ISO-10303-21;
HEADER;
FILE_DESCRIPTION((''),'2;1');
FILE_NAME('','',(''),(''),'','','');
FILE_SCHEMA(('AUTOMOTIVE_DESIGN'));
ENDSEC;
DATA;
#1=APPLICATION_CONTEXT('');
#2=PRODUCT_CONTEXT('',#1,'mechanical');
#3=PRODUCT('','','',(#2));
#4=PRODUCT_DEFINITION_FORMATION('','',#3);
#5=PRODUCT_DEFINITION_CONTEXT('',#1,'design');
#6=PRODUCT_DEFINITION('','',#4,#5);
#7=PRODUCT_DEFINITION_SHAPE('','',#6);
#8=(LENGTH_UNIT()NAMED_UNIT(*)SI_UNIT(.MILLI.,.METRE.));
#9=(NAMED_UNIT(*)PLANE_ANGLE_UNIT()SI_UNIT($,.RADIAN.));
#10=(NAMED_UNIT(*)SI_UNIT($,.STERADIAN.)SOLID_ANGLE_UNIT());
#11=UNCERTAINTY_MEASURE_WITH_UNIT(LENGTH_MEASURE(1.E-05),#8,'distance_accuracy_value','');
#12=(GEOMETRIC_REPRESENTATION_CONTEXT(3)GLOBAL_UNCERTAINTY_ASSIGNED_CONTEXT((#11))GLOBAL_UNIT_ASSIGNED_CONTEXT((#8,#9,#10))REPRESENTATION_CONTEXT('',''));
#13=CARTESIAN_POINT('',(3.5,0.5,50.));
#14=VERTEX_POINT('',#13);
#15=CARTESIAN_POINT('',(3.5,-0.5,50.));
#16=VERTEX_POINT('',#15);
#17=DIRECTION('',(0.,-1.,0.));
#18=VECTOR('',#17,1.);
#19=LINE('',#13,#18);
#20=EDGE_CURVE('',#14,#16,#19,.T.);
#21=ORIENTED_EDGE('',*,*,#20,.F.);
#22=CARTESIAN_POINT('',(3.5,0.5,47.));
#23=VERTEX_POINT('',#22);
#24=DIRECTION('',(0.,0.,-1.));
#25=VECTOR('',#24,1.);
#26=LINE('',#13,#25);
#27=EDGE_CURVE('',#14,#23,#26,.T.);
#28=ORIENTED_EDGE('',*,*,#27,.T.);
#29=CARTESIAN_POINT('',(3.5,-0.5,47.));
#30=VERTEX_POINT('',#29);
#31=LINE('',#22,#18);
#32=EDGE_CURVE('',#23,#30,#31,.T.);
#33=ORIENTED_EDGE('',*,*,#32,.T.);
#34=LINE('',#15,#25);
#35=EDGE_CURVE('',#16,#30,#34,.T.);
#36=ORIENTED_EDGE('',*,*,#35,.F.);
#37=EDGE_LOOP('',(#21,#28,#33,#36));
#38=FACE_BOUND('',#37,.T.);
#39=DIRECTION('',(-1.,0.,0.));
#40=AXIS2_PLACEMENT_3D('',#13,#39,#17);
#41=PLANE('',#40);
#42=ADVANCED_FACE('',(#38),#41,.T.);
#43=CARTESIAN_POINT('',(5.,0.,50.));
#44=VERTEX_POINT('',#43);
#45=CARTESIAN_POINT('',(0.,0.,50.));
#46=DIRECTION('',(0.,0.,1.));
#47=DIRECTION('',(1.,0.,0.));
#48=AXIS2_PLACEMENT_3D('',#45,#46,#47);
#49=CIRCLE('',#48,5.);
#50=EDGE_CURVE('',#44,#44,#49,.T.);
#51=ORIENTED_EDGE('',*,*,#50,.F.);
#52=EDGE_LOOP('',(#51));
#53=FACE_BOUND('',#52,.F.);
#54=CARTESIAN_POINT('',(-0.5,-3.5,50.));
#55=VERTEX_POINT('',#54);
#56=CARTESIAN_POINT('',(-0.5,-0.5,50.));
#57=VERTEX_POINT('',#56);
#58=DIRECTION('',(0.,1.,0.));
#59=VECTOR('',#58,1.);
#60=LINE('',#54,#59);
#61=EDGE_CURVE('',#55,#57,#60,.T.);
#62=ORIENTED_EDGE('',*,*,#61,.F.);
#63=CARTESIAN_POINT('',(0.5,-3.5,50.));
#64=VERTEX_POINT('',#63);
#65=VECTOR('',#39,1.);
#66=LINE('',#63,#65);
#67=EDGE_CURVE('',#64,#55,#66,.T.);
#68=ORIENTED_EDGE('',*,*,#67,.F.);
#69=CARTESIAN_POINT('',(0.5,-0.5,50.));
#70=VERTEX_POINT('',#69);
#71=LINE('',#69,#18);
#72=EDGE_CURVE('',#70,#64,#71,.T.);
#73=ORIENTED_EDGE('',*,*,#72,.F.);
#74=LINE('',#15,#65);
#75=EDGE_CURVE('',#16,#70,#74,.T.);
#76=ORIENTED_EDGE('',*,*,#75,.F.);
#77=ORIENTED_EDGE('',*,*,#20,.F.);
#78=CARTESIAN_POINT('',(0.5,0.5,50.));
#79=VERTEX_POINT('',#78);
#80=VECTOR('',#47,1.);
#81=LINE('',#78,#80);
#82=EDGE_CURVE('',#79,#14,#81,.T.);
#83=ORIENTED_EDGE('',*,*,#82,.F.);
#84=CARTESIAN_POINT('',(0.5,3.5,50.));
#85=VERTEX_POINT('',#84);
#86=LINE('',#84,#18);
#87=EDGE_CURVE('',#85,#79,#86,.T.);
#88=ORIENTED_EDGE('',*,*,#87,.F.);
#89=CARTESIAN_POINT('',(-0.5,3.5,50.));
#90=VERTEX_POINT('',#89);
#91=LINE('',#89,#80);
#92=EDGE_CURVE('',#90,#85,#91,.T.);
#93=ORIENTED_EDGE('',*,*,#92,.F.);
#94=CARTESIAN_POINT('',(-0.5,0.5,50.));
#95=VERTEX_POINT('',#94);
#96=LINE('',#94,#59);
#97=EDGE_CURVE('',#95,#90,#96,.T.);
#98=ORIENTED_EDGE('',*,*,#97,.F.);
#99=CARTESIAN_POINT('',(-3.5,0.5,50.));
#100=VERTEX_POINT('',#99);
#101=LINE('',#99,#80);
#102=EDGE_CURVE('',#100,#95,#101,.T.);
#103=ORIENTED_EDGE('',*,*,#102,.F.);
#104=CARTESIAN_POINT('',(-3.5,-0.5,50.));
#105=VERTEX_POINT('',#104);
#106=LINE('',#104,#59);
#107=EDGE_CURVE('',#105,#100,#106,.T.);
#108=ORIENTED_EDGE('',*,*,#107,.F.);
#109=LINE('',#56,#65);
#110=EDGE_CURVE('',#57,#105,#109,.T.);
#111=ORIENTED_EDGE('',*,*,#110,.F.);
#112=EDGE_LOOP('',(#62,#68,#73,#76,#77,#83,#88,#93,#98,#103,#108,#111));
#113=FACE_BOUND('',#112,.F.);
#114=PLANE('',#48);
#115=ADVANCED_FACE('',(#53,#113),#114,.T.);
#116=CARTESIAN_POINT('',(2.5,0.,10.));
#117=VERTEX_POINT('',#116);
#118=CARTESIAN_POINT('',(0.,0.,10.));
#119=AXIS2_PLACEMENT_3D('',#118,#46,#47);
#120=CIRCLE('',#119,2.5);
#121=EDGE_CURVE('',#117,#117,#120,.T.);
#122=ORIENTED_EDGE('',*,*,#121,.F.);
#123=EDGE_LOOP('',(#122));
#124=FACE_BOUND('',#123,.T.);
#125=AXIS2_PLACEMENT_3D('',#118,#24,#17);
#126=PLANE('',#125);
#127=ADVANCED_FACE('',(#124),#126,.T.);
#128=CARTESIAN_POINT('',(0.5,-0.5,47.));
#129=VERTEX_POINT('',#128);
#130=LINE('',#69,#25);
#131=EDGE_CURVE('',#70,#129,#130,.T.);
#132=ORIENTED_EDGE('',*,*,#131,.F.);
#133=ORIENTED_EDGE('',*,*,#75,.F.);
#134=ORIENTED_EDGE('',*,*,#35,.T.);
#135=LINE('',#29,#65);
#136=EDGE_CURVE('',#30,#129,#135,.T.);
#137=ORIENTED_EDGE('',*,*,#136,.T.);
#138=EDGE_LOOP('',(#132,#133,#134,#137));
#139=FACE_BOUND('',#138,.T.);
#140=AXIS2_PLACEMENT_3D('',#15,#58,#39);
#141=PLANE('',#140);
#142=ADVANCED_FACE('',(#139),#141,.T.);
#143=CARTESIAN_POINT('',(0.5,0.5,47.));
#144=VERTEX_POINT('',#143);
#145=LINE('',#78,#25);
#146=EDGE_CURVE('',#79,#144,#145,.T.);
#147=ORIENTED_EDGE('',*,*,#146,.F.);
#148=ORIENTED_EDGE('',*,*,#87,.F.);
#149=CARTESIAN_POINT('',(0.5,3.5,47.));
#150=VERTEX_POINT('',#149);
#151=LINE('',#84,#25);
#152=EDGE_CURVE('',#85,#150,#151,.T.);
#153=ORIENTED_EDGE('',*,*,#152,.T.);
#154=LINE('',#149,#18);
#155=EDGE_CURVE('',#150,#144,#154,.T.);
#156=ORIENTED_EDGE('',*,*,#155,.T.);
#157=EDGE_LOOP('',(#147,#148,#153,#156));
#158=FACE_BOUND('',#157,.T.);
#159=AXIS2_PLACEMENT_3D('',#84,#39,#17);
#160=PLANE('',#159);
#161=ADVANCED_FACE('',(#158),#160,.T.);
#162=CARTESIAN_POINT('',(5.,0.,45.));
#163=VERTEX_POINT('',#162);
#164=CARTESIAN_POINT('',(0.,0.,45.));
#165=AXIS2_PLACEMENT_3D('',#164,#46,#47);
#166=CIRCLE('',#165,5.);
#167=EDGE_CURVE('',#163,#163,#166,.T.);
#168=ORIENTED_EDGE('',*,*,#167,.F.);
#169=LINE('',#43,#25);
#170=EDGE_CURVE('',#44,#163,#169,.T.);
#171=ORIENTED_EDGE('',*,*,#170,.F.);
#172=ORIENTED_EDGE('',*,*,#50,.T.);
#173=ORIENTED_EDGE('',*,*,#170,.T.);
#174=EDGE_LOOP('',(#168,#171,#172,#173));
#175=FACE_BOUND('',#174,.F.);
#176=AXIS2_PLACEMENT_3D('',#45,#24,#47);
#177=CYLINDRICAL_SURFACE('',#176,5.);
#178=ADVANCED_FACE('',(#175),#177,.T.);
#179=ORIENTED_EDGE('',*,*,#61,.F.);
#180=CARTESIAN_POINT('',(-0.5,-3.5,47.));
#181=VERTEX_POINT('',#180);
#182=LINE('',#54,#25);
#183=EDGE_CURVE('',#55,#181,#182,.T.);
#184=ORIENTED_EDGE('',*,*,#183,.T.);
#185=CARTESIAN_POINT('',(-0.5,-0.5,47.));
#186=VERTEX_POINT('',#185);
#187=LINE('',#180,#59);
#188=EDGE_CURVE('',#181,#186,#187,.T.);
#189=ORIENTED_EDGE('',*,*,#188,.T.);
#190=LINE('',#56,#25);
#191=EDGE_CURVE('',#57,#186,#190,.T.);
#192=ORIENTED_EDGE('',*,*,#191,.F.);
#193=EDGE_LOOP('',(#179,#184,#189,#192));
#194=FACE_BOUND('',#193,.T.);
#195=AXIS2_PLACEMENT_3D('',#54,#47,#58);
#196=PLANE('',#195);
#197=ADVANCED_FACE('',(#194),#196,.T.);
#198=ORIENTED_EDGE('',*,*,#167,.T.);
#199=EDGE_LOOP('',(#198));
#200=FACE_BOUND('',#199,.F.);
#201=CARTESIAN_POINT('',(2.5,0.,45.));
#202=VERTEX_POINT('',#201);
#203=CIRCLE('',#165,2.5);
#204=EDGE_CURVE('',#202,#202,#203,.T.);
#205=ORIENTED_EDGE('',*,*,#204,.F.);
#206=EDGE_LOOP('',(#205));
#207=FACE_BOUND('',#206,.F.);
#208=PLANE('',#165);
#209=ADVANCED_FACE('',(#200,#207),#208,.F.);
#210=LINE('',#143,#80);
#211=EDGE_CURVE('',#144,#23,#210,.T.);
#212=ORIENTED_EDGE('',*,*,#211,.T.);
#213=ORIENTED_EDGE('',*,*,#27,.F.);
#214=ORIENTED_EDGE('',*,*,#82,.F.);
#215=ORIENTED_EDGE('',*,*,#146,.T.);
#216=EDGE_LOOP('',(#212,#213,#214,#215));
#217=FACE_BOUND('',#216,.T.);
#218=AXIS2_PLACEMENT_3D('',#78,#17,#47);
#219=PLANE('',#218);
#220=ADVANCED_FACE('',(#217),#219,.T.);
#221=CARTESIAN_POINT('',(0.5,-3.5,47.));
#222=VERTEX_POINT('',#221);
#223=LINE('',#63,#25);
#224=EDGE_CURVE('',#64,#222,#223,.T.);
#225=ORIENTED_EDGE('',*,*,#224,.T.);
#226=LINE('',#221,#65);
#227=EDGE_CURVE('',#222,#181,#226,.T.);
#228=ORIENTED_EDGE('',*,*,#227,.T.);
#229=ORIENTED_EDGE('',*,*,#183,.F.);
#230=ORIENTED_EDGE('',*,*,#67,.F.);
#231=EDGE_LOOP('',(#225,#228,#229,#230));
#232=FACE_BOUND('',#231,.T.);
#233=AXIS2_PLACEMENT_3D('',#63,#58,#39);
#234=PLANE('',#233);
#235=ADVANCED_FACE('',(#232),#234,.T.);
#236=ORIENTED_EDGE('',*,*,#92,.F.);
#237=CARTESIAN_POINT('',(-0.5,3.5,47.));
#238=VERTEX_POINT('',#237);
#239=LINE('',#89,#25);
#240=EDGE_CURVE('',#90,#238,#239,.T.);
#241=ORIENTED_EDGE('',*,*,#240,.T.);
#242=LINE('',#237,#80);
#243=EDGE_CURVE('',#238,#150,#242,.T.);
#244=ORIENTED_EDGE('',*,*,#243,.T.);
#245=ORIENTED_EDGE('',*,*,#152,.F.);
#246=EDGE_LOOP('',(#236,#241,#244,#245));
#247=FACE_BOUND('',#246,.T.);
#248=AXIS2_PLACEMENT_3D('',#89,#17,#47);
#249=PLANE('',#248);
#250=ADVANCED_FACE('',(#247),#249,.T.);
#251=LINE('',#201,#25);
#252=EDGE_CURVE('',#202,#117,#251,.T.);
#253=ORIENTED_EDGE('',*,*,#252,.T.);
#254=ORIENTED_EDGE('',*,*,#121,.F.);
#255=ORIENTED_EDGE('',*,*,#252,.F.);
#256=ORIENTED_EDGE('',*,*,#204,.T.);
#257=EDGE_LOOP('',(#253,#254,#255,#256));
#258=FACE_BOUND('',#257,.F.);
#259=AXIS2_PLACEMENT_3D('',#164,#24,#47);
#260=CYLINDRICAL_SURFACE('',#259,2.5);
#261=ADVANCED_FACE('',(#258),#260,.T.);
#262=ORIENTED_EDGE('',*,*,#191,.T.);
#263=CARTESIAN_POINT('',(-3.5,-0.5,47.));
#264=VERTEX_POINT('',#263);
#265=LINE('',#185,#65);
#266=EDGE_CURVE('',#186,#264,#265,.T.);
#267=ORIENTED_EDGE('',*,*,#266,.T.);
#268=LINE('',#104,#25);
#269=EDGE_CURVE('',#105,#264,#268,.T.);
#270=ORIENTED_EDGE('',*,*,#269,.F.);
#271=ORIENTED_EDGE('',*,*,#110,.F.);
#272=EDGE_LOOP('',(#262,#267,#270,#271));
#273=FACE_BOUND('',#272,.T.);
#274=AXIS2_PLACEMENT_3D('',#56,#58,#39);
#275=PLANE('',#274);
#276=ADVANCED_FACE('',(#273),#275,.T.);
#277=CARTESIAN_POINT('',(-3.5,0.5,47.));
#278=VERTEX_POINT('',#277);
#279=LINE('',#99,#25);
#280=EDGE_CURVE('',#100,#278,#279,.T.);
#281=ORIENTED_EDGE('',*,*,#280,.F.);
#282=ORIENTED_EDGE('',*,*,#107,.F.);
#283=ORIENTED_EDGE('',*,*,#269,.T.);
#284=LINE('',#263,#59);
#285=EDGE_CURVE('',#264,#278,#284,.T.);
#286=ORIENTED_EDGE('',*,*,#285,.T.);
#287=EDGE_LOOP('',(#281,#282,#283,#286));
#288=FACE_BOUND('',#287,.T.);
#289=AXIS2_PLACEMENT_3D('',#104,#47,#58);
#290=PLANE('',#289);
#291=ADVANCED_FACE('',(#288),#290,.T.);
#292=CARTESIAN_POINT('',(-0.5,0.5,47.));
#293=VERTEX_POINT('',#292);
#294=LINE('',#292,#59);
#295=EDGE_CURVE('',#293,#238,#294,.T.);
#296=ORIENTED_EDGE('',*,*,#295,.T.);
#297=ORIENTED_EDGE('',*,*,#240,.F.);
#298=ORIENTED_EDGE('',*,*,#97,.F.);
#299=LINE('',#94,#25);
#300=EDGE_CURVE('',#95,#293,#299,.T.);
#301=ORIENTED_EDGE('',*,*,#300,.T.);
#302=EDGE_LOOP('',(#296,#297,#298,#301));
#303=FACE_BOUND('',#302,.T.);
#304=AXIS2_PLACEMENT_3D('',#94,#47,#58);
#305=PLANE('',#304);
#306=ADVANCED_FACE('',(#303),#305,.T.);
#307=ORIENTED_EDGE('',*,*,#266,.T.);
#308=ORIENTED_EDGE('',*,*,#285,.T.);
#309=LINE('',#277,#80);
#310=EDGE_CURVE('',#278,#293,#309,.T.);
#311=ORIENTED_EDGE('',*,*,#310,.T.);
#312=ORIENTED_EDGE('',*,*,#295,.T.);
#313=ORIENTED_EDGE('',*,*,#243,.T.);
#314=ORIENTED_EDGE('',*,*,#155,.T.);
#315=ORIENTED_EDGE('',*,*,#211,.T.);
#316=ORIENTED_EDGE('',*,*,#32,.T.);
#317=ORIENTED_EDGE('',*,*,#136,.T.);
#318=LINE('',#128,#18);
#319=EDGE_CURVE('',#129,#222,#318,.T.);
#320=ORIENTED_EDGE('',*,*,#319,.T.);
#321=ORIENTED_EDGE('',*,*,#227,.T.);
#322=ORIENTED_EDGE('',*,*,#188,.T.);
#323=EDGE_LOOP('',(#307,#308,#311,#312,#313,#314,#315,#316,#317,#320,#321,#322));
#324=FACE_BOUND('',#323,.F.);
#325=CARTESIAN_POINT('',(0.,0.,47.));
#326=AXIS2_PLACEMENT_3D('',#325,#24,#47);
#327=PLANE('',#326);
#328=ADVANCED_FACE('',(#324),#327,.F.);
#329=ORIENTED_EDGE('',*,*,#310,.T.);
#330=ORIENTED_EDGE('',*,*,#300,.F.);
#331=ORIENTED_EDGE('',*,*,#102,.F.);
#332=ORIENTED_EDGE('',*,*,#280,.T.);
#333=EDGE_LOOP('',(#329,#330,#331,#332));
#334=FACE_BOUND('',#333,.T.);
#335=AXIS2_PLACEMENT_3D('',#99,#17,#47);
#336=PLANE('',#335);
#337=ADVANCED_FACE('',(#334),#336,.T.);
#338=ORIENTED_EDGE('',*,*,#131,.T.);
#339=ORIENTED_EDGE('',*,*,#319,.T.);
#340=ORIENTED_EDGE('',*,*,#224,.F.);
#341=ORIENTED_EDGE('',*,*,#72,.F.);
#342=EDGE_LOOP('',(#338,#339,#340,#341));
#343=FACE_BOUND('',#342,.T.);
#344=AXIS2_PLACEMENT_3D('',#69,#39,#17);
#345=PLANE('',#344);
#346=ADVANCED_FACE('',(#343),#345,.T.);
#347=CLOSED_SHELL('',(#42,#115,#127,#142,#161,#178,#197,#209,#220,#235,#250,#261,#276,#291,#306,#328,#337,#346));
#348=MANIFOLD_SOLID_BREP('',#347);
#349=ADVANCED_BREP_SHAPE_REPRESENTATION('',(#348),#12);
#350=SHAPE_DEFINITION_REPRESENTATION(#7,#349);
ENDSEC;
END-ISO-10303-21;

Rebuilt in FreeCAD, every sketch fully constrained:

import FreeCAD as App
import Part
import Sketcher
from FreeCAD import Vector


def add_polygon(sketch, points):
    """Adds a closed chain of lines whose ends are joined by coincident constraints."""
    first, n = sketch.GeometryCount, len(points)
    for a, b in zip(points, points[1:] + points[:1]):
        sketch.addGeometry(Part.LineSegment(App.Vector(*a, 0), App.Vector(*b, 0)), False)
    for i in range(n):
        sketch.addConstraint(Sketcher.Constraint("Coincident", first + i, 2, first + (i + 1) % n, 1))

doc = App.newDocument("Part")
body = doc.addObject("PartDesign::Body", "Body")

# Sketch on XZ plane
sketch1 = body.newObject("Sketcher::SketchObject", "Sketch")
sketch1.AttachmentSupport = (doc.getObject("XZ_Plane"), [""])
sketch1.MapMode = "FlatFace"
add_polygon(sketch1, [(5, 50), (0, 50), (0, 0), (2.5, 0), (2.5, 45), (5, 45)])  # lines 0-5
sketch1.addConstraint([
    Sketcher.Constraint("Horizontal", 0),
    Sketcher.Constraint("Vertical", 1),
    Sketcher.Constraint("Horizontal", 2),
    Sketcher.Constraint("Vertical", 3),
    Sketcher.Constraint("Horizontal", 4),
    Sketcher.Constraint("Vertical", 5),
    Sketcher.Constraint("Coincident", 1, 2, -1, 1),
    Sketcher.Constraint("Equal", 2, 4),
    Sketcher.Constraint("Equal", 0, 5),
    Sketcher.Constraint("DistanceX", 0, 2, 0, 1, 5.0),
    Sketcher.Constraint("DistanceY", 1, 2, 1, 1, 50.0),
])
revolution = body.newObject("PartDesign::Revolution", "Revolution")
revolution.Profile = sketch1
revolution.ReferenceAxis = (sketch1, ["V_Axis"])
revolution.Angle = 360

# Sketch on XY plane
sketch2 = body.newObject("Sketcher::SketchObject", "Sketch001")
sketch2.AttachmentSupport = (doc.getObject("XY_Plane"), [""])
sketch2.MapMode = "FlatFace"
sketch2.AttachmentOffset = App.Placement(Vector(0, 0, 50), App.Rotation())
add_polygon(sketch2, [(0.5, -0.5), (3.5, -0.5), (3.5, 0.5), (0.5, 0.5), (0.5, 3.5), (-0.5, 3.5), (-0.5, 0.5), (-3.5, 0.5), (-3.5, -0.5), (-0.5, -0.5), (-0.5, -3.5), (0.5, -3.5)])  # lines 0-11
sketch2.addConstraint([
    Sketcher.Constraint("Horizontal", 0),
    Sketcher.Constraint("Vertical", 1),
    Sketcher.Constraint("Horizontal", 2),
    Sketcher.Constraint("Vertical", 3),
    Sketcher.Constraint("Horizontal", 4),
    Sketcher.Constraint("Vertical", 5),
    Sketcher.Constraint("Horizontal", 6),
    Sketcher.Constraint("Vertical", 7),
    Sketcher.Constraint("Horizontal", 8),
    Sketcher.Constraint("Vertical", 9),
    Sketcher.Constraint("Horizontal", 10),
    Sketcher.Constraint("Vertical", 11),
    Sketcher.Constraint("Symmetric", 0, 2, 6, 2, -1, 1),
    Sketcher.Constraint("Symmetric", 2, 2, 8, 2, -1, 1),
    Sketcher.Constraint("Symmetric", 4, 2, 10, 2, -1, 1),
    Sketcher.Constraint("Symmetric", 2, 2, 5, 2, -2),
    Sketcher.Constraint("Equal", 10, 1),
    Sketcher.Constraint("Equal", 8, 3),
    Sketcher.Constraint("DistanceX", 0, 1, 0, 2, 3.0),
    Sketcher.Constraint("DistanceX", 4, 2, 4, 1, 1.0),
])
pocket1 = body.newObject("PartDesign::Pocket", "Pocket")
pocket1.Profile = sketch2
pocket1.Length = 3

# Sketch on XY plane
sketch3 = body.newObject("Sketcher::SketchObject", "Sketch002")
sketch3.AttachmentSupport = (doc.getObject("XY_Plane"), [""])
sketch3.MapMode = "FlatFace"
sketch3.addGeometry(Part.Circle(Vector(0, 0, 0), Vector(0, 0, 1), 2.5), False)
sketch3.addConstraint([
    Sketcher.Constraint("Coincident", 0, 3, -1, 1),
    Sketcher.Constraint("Diameter", 0, 5.0),
])
pocket2 = body.newObject("PartDesign::Pocket", "Pocket001")
pocket2.Profile = sketch3
pocket2.Length = 10
pocket2.Reversed = True

doc.recompute()
